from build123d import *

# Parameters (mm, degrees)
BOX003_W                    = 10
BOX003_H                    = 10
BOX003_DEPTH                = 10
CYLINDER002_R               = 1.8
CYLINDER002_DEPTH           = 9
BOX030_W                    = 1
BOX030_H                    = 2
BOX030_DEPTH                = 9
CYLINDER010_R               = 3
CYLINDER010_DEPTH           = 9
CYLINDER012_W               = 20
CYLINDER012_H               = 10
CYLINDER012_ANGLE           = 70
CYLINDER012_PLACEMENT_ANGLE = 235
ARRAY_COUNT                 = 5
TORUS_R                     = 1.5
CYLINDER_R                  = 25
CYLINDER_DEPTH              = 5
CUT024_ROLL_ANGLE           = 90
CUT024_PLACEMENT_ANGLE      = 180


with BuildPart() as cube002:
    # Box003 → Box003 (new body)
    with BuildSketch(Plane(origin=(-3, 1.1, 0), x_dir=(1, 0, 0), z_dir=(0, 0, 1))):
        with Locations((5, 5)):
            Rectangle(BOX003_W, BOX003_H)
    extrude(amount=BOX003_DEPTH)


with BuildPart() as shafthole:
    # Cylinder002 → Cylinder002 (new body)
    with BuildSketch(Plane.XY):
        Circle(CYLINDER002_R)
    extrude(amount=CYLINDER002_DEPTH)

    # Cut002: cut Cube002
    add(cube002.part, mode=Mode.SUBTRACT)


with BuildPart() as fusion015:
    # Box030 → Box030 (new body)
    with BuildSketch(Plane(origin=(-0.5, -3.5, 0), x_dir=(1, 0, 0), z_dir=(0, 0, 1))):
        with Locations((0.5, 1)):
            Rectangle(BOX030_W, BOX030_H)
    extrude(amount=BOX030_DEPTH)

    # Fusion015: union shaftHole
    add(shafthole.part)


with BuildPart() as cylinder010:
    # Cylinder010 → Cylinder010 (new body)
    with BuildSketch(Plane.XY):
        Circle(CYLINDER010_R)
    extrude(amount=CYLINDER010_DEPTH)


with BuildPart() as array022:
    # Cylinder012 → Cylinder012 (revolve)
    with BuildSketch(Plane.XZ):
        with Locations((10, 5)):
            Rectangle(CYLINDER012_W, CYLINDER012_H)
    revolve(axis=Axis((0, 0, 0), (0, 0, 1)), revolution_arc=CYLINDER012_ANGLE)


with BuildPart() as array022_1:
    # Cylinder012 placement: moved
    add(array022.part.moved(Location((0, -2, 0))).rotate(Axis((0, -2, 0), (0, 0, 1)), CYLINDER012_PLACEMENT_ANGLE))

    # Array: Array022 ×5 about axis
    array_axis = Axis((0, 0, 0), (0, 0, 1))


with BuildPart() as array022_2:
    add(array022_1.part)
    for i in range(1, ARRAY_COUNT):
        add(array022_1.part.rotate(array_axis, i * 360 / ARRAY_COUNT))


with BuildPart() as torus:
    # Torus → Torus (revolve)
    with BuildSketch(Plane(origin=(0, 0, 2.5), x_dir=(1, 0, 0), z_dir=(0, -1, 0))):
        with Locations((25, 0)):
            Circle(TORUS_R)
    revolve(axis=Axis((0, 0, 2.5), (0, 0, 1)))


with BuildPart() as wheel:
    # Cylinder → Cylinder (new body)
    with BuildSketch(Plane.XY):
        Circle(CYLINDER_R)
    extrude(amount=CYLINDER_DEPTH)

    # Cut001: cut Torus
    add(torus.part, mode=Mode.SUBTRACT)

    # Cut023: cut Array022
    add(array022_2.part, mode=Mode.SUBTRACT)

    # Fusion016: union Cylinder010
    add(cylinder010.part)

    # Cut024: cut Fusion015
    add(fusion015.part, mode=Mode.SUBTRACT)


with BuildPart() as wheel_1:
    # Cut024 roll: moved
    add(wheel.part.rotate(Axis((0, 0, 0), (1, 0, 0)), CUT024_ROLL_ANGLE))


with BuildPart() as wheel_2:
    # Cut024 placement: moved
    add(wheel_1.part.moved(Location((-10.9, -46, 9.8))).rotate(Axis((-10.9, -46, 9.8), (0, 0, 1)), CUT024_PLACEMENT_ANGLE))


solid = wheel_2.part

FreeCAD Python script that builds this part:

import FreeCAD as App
import Part
import Sketcher

V = App.Vector
Q = App.Units.Quantity


def add_polygon(sketch, points):
    """Adds a closed chain of lines whose ends are joined by coincident constraints."""
    first, n = sketch.GeometryCount, len(points)
    for a, b in zip(points, points[1:] + points[:1]):
        sketch.addGeometry(Part.LineSegment(App.Vector(*a, 0), App.Vector(*b, 0)), False)
    for i in range(n):
        sketch.addConstraint(Sketcher.Constraint("Coincident", first + i, 2, first + (i + 1) % n, 1))

doc = App.newDocument("Part")
body = doc.addObject("PartDesign::Body", "Body")

# Sketch on XY plane
sketch1 = doc.addObject("Sketcher::SketchObject", "Sketch")
body.addObject(sketch1)
sketch1.AttachmentSupport = (doc.XY_Plane, [""])
sketch1.MapMode = "FlatFace"
add_polygon(sketch1, [(-3, 11), (-3, 1), (7, 1), (7, 11)])  # lines 0-3
sketch1.addConstraint([
    Sketcher.Constraint("Vertical", 0),
    Sketcher.Constraint("Horizontal", 1),
    Sketcher.Constraint("Vertical", 2),
    Sketcher.Constraint("Horizontal", 3),
    Sketcher.Constraint("Equal", 3, 0),
    Sketcher.Constraint("DistanceX", 1, 1, 1, 2, Q("10 mm")),
    Sketcher.Constraint("DistanceX", 0, 2, -1, 1, Q("3 mm")),
    Sketcher.Constraint("DistanceY", -1, 1, 0, 2, Q("1.1 mm")),
])
pad1 = doc.addObject("PartDesign::Pad", "Pad")
body.addObject(pad1)
pad1.Profile = sketch1
pad1.Length = 10
body2 = doc.addObject("PartDesign::Body", "Body001")

# Sketch on XY plane
sketch2 = doc.addObject("Sketcher::SketchObject", "Sketch001")
body2.addObject(sketch2)
sketch2.AttachmentSupport = (doc.getObject("XY_Plane001"), [""])
sketch2.MapMode = "FlatFace"
sketch2.addGeometry(Part.Circle(V(0, 0, 0), V(0, 0, 1), 1.8), False)
sketch2.addConstraint([
    Sketcher.Constraint("Coincident", 0, 3, -1, 1),
    Sketcher.Constraint("Diameter", 0, Q("3.6 mm")),
])
pad2 = doc.addObject("PartDesign::Pad", "Pad001")
body2.addObject(pad2)
pad2.Profile = sketch2
pad2.Length = 9
doc.recompute()

boolean = doc.addObject("PartDesign::Boolean", "Boolean")
body2.addObject(boolean)
boolean.Type = "Cut"
boolean.addObjects([body])
body3 = doc.addObject("PartDesign::Body", "Body002")

# Sketch on XY plane
sketch3 = doc.addObject("Sketcher::SketchObject", "Sketch002")
body3.addObject(sketch3)
sketch3.AttachmentSupport = (doc.getObject("XY_Plane002"), [""])
sketch3.MapMode = "FlatFace"
add_polygon(sketch3, [(-0.5, -1.5), (-0.5, -3.5), (0.5, -3.5), (0.5, -1.5)])  # lines 0-3
sketch3.addConstraint([
    Sketcher.Constraint("Vertical", 0),
    Sketcher.Constraint("Horizontal", 1),
    Sketcher.Constraint("Vertical", 2),
    Sketcher.Constraint("Horizontal", 3),
    Sketcher.Constraint("DistanceX", 1, 1, 1, 2, Q("1 mm")),
    Sketcher.Constraint("DistanceY", 0, 2, 0, 1, Q("2 mm")),
    Sketcher.Constraint("DistanceX", 0, 2, -1, 1, Q("0.5 mm")),
    Sketcher.Constraint("DistanceY", 0, 2, -1, 1, Q("3.5 mm")),
])
pad3 = doc.addObject("PartDesign::Pad", "Pad002")
body3.addObject(pad3)
pad3.Profile = sketch3
pad3.Length = 9
doc.recompute()

boolean2 = doc.addObject("PartDesign::Boolean", "Boolean001")
body3.addObject(boolean2)
boolean2.Type = "Fuse"
boolean2.addObjects([body2])
body4 = doc.addObject("PartDesign::Body", "Body003")

# Sketch on XY plane
sketch4 = doc.addObject("Sketcher::SketchObject", "Sketch003")
body4.addObject(sketch4)
sketch4.AttachmentSupport = (doc.getObject("XY_Plane003"), [""])
sketch4.MapMode = "FlatFace"
sketch4.addGeometry(Part.Circle(V(0, 0, 0), V(0, 0, 1), 3), False)
sketch4.addConstraint([
    Sketcher.Constraint("Coincident", 0, 3, -1, 1),
    Sketcher.Constraint("Diameter", 0, Q("6 mm")),
])
pad4 = doc.addObject("PartDesign::Pad", "Pad003")
body4.addObject(pad4)
pad4.Profile = sketch4
pad4.Length = 9
body5 = doc.addObject("PartDesign::Body", "Body004")

# Sketch on XZ plane
sketch5 = doc.addObject("Sketcher::SketchObject", "Sketch004")
body5.addObject(sketch5)
sketch5.AttachmentSupport = (doc.getObject("XZ_Plane004"), [""])
sketch5.MapMode = "FlatFace"
add_polygon(sketch5, [(0, 10), (0, 0), (20, 0), (20, 10)])  # lines 0-3
sketch5.addConstraint([
    Sketcher.Constraint("Vertical", 0),
    Sketcher.Constraint("Horizontal", 1),
    Sketcher.Constraint("Vertical", 2),
    Sketcher.Constraint("Horizontal", 3),
    Sketcher.Constraint("Coincident", 0, 2, -1, 1),
    Sketcher.Constraint("DistanceX", 1, 1, 1, 2, Q("20 mm")),
    Sketcher.Constraint("DistanceY", 0, 2, 0, 1, Q("10 mm")),
])
revolution = doc.addObject("PartDesign::Revolution", "Revolution")
body5.addObject(revolution)
revolution.Profile = sketch5
revolution.ReferenceAxis = (sketch5, ["V_Axis"])
revolution.Angle = 70
body6 = doc.addObject("PartDesign::Body", "Body005")
doc.recompute()

body5.Placement = App.Placement(V(0, -2, 0), App.Rotation(V(0, 0, 1), 235))
boolean3 = doc.addObject("PartDesign::Boolean", "Boolean002")
body6.addObject(boolean3)
boolean3.Type = "Fuse"
boolean3.addObjects([body5])
body7 = doc.addObject("PartDesign::Body", "Body006")
body7.AllowCompound = True
doc.recompute()

body7.BaseFeature = body6
doc.recompute()

body8 = doc.addObject("PartDesign::Body", "Body007")
body8.BaseFeature = body6
body8.Placement = App.Placement(V(0, 0, 0), App.Rotation(V(0, 0, 1), 72))
boolean4 = doc.addObject("PartDesign::Boolean", "Boolean003")
body7.addObject(boolean4)
boolean4.Type = "Fuse"
boolean4.addObjects([body8])
doc.recompute()

body9 = doc.addObject("PartDesign::Body", "Body008")
body9.BaseFeature = body6
body9.Placement = App.Placement(V(0, 0, 0), App.Rotation(V(0, 0, 1), 144))
boolean5 = doc.addObject("PartDesign::Boolean", "Boolean004")
body7.addObject(boolean5)
boolean5.Type = "Fuse"
boolean5.addObjects([body9])
doc.recompute()

body10 = doc.addObject("PartDesign::Body", "Body009")
body10.BaseFeature = body6
body10.Placement = App.Placement(V(0, 0, 0), App.Rotation(V(0, 0, 1), 216))
boolean6 = doc.addObject("PartDesign::Boolean", "Boolean005")
body7.addObject(boolean6)
boolean6.Type = "Fuse"
boolean6.addObjects([body10])
doc.recompute()

body6.Placement = App.Placement(V(0, 0, 0), App.Rotation(V(0, 0, 1), 288))
boolean7 = doc.addObject("PartDesign::Boolean", "Boolean006")
body7.addObject(boolean7)
boolean7.Type = "Fuse"
boolean7.addObjects([body6])
body11 = doc.addObject("PartDesign::Body", "Body010")

# Sketch on XZ plane
sketch6 = doc.addObject("Sketcher::SketchObject", "Sketch005")
body11.addObject(sketch6)
sketch6.AttachmentSupport = (doc.getObject("XZ_Plane010"), [""])
sketch6.MapMode = "FlatFace"
sketch6.addGeometry(Part.Circle(V(25, 2.5, 0), V(0, 0, 1), 1.5), False)
sketch6.addConstraint([
    Sketcher.Constraint("Diameter", 0, Q("3 mm")),
    Sketcher.Constraint("DistanceX", -1, 1, 0, 3, Q("25 mm")),
    Sketcher.Constraint("DistanceY", -1, 1, 0, 3, Q("2.5 mm")),
])
revolution2 = doc.addObject("PartDesign::Revolution", "Revolution001")
body11.addObject(revolution2)
revolution2.Profile = sketch6
revolution2.ReferenceAxis = (sketch6, ["V_Axis"])
revolution2.Angle = 360
body12 = doc.addObject("PartDesign::Body", "Body011")

# Sketch on XY plane
sketch7 = doc.addObject("Sketcher::SketchObject", "Sketch006")
body12.addObject(sketch7)
sketch7.AttachmentSupport = (doc.getObject("XY_Plane011"), [""])
sketch7.MapMode = "FlatFace"
sketch7.addGeometry(Part.Circle(V(0, 0, 0), V(0, 0, 1), 25), False)
sketch7.addConstraint([
    Sketcher.Constraint("Coincident", 0, 3, -1, 1),
    Sketcher.Constraint("Diameter", 0, Q("50 mm")),
])
pad5 = doc.addObject("PartDesign::Pad", "Pad004")
body12.addObject(pad5)
pad5.Profile = sketch7
pad5.Length = 5
doc.recompute()

boolean8 = doc.addObject("PartDesign::Boolean", "Boolean007")
body12.addObject(boolean8)
boolean8.Type = "Cut"
boolean8.addObjects([body11])
doc.recompute()

boolean9 = doc.addObject("PartDesign::Boolean", "Boolean008")
body12.addObject(boolean9)
boolean9.Type = "Cut"
boolean9.addObjects([body7])
doc.recompute()

boolean10 = doc.addObject("PartDesign::Boolean", "Boolean009")
body12.addObject(boolean10)
boolean10.Type = "Fuse"
boolean10.addObjects([body4])
doc.recompute()

boolean11 = doc.addObject("PartDesign::Boolean", "Boolean010")
body12.addObject(boolean11)
boolean11.Type = "Cut"
boolean11.addObjects([body3])
body13 = doc.addObject("PartDesign::Body", "Body012")
doc.recompute()

body12.Placement = App.Placement(V(0, 0, 0), App.Rotation(V(1, 0, 0), 90))
boolean12 = doc.addObject("PartDesign::Boolean", "Boolean011")
body13.addObject(boolean12)
boolean12.Type = "Fuse"
boolean12.addObjects([body12])
body14 = doc.addObject("PartDesign::Body", "Body013")
doc.recompute()

body13.Placement = App.Placement(V(-10.9, -46, 9.8), App.Rotation(V(0, 0, 1), 180))
boolean13 = doc.addObject("PartDesign::Boolean", "Boolean012")
body14.addObject(boolean13)
boolean13.Type = "Fuse"
boolean13.addObjects([body13])

doc.recompute()
